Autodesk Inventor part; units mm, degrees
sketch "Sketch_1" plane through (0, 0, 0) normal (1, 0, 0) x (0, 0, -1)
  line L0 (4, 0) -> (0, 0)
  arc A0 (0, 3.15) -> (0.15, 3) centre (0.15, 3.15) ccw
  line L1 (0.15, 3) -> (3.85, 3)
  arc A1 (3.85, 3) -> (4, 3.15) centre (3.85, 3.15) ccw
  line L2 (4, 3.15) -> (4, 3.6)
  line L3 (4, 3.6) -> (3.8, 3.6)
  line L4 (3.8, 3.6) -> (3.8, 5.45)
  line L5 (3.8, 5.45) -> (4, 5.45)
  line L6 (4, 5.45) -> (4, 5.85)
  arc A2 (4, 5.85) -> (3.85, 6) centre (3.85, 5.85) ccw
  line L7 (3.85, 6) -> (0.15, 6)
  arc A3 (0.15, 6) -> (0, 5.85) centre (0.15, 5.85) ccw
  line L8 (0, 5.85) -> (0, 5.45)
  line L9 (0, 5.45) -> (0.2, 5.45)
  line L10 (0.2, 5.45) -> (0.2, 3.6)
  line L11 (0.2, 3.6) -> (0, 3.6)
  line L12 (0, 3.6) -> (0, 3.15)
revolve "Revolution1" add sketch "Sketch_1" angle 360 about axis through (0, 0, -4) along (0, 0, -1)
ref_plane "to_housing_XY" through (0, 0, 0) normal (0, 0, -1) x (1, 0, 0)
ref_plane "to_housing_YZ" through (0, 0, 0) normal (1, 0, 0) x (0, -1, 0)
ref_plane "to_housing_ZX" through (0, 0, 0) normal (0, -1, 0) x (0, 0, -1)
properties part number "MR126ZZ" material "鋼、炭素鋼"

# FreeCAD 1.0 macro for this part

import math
import FreeCAD as App
import Part
import Sketcher

V = App.Vector

doc = App.newDocument("Part")
params = doc.addObject("Spreadsheet::Sheet", "Params")
for row, (alias, value) in enumerate([
    ("sketch1_radius", "0.15 mm"),
    ("sketch1_width", "0.4 mm"),
    ("sketch1_height", "3.7 mm"),
    ("sketch1_height2", "0.2 mm"),
    ("sketch1_width2", "0.45 mm"),
    ("revolution_angle", "360 deg"),
], start=1):
    params.set(f"A{row}", alias)
    params.set(f"B{row}", "=" + value)
    params.setAlias(f"B{row}", alias)

body = doc.addObject("PartDesign::Body", "Body")

# Sketch on YZ plane
sketch1 = doc.addObject("Sketcher::SketchObject", "Sketch")
body.addObject(sketch1)
sketch1.AttachmentSupport = (doc.YZ_Plane, [""])
sketch1.MapMode = "FlatFace"
sketch1.addGeometry([
    Part.LineSegment(V(3.6, 0, 0), V(3.15, 0, 0)),  # 0
    Part.ArcOfCircle(Part.Circle(V(3.15, -0.15, 0), V(0, 0, 1), 0.15), math.radians(90), math.radians(180)),  # 1
    Part.LineSegment(V(3, -0.15, 0), V(3, -3.85, 0)),  # 2
    Part.ArcOfCircle(Part.Circle(V(3.15, -3.85, 0), V(0, 0, 1), 0.15), math.radians(180), math.radians(270)),  # 3
    Part.LineSegment(V(3.15, -4, 0), V(3.6, -4, 0)),  # 4
    Part.LineSegment(V(3.6, -4, 0), V(3.6, -3.8, 0)),  # 5
    Part.LineSegment(V(3.6, -3.8, 0), V(5.45, -3.8, 0)),  # 6
    Part.LineSegment(V(5.45, -3.8, 0), V(5.45, -4, 0)),  # 7
    Part.LineSegment(V(5.45, -4, 0), V(5.85, -4, 0)),  # 8
    Part.ArcOfCircle(Part.Circle(V(5.85, -3.85, 0), V(0, 0, 1), 0.15), math.radians(-90), math.radians(0)),  # 9
    Part.LineSegment(V(6, -3.85, 0), V(6, -0.15, 0)),  # 10
    Part.ArcOfCircle(Part.Circle(V(5.85, -0.15, 0), V(0, 0, 1), 0.15), math.radians(0), math.radians(90)),  # 11
    Part.LineSegment(V(5.85, 0, 0), V(5.45, 0, 0)),  # 12
    Part.LineSegment(V(5.45, 0, 0), V(5.45, -0.2, 0)),  # 13
    Part.LineSegment(V(5.45, -0.2, 0), V(3.6, -0.2, 0)),  # 14
    Part.LineSegment(V(3.6, -0.2, 0), V(3.6, 0, 0)),  # 15
], False)
sketch1.addConstraint([
    Sketcher.Constraint("Tangent", 0, 2, 1, 1),
    Sketcher.Constraint("Tangent", 1, 2, 2, 1),
    Sketcher.Constraint("Tangent", 2, 2, 3, 1),
    Sketcher.Constraint("Tangent", 3, 2, 4, 1),
    Sketcher.Constraint("Coincident", 4, 2, 5, 1),
    Sketcher.Constraint("Coincident", 5, 2, 6, 1),
    Sketcher.Constraint("Coincident", 6, 2, 7, 1),
    Sketcher.Constraint("Coincident", 7, 2, 8, 1),
    Sketcher.Constraint("Tangent", 8, 2, 9, 1),
    Sketcher.Constraint("Tangent", 9, 2, 10, 1),
    Sketcher.Constraint("Tangent", 10, 2, 11, 1),
    Sketcher.Constraint("Tangent", 11, 2, 12, 1),
    Sketcher.Constraint("Coincident", 12, 2, 13, 1),
    Sketcher.Constraint("Coincident", 13, 2, 14, 1),
    Sketcher.Constraint("Coincident", 14, 2, 15, 1),
    Sketcher.Constraint("Coincident", 15, 2, 0, 1),
    Sketcher.Constraint("Horizontal", 0),
    Sketcher.Constraint("Vertical", 2),
    Sketcher.Constraint("Horizontal", 4),
    Sketcher.Constraint("Vertical", 5),
    Sketcher.Constraint("Horizontal", 6),
    Sketcher.Constraint("Vertical", 7),
    Sketcher.Constraint("Horizontal", 8),
    Sketcher.Constraint("Vertical", 10),
    Sketcher.Constraint("Horizontal", 12),
    Sketcher.Constraint("Vertical", 13),
    Sketcher.Constraint("Horizontal", 14),
    Sketcher.Constraint("Vertical", 15),
    Sketcher.Constraint("Equal", 1, 3),
    Sketcher.Constraint("Equal", 3, 9),
    Sketcher.Constraint("Equal", 9, 11),
    Sketcher.Constraint("PointOnObject", 0, 2, -1),
    Sketcher.Constraint("PointOnObject", 11, 2, -1),
    Sketcher.Constraint("Horizontal", 3, 3, 9, 3),
    Sketcher.Constraint("Vertical", 7, 2, 12, 2),
    Sketcher.Constraint("Vertical", 5, 2, 14, 2),
    Sketcher.Constraint("Equal", 7, 13),
    Sketcher.Constraint("Radius", 1, 0.15),
    Sketcher.Constraint("DistanceX", 8, 1, 8, 2, 0.4),
    Sketcher.Constraint("DistanceY", 2, 2, 2, 1, 3.7),
    Sketcher.Constraint("DistanceY", 5, 1, 5, 2, 0.2),
    Sketcher.Constraint("DistanceX", -1, 1, 1, 2, 3.0),
    Sketcher.Constraint("DistanceX", -1, 1, 9, 2, 6.0),
    Sketcher.Constraint("DistanceX", 0, 2, 0, 1, 0.45),
])
sketch1.setExpression("Constraints[37]", "Params.sketch1_radius")
sketch1.setExpression("Constraints[38]", "Params.sketch1_width")
sketch1.setExpression("Constraints[39]", "Params.sketch1_height")
sketch1.setExpression("Constraints[40]", "Params.sketch1_height2")
sketch1.setExpression("Constraints[43]", "Params.sketch1_width2")
revolution = doc.addObject("PartDesign::Revolution", "Revolution")
body.addObject(revolution)
revolution.Profile = sketch1
revolution.ReferenceAxis = (sketch1, ["V_Axis"])
revolution.setExpression("Angle", "Params.revolution_angle")

doc.recompute()
